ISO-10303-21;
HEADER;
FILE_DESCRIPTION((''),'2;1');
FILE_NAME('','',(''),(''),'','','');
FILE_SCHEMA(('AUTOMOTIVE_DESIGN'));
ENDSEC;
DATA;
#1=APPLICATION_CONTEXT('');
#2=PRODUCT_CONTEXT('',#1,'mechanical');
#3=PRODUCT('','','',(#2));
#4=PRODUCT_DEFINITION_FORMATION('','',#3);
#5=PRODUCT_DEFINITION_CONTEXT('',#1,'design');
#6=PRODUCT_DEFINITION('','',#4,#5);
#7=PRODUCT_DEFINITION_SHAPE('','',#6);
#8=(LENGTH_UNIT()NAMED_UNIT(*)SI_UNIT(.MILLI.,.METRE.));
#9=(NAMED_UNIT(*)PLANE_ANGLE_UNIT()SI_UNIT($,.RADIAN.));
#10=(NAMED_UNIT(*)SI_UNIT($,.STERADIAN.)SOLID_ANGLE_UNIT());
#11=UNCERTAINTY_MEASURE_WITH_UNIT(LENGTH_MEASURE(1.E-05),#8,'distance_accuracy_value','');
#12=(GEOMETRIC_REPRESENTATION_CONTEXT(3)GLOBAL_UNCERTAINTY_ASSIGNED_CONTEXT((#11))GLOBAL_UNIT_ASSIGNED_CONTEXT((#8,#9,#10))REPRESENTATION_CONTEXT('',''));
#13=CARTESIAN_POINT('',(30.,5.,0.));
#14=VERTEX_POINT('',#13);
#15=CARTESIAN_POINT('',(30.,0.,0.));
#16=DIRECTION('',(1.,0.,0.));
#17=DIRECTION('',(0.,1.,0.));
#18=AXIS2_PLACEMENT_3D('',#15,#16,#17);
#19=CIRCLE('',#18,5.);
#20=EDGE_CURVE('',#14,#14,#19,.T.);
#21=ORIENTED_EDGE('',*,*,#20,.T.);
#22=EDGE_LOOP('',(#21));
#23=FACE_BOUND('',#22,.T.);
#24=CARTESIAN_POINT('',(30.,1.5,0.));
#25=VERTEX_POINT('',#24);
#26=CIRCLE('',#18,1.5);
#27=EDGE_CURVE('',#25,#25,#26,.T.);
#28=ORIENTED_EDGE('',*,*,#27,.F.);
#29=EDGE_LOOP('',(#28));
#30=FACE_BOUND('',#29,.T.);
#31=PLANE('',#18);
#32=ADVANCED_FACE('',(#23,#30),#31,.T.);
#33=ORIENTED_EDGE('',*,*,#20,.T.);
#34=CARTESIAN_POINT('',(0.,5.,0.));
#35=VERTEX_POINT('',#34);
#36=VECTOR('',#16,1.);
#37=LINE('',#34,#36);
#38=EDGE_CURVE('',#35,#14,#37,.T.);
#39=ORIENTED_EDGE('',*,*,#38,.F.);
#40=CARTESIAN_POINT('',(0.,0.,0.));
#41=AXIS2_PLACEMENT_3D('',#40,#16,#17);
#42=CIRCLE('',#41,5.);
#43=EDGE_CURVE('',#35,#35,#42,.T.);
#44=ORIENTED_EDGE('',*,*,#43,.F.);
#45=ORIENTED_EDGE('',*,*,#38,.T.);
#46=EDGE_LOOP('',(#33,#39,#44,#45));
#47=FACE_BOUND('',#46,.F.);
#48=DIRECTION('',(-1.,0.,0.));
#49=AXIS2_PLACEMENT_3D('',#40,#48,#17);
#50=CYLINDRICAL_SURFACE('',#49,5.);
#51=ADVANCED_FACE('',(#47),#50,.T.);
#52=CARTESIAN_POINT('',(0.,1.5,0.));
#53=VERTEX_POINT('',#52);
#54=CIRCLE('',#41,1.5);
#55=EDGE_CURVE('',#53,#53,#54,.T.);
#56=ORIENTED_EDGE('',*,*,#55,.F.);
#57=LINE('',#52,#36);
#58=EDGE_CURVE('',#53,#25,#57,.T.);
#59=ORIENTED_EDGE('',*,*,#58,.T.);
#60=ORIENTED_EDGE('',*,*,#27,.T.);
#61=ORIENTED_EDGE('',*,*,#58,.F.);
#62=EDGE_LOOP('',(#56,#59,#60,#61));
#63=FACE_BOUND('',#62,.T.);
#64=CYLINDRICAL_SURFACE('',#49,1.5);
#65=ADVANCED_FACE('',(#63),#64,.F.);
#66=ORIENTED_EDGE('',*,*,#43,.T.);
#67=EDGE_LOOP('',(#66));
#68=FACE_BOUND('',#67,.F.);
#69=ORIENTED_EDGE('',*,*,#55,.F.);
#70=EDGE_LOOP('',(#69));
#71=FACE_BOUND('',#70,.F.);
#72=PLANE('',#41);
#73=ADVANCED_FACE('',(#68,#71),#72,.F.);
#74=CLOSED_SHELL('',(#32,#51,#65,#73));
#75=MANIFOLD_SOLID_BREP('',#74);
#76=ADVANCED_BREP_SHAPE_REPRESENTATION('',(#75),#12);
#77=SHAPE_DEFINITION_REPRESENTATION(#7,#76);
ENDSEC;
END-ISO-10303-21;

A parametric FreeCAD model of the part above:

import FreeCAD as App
import Part
import Sketcher
from FreeCAD import Vector

doc = App.newDocument("Part")
body = doc.addObject("PartDesign::Body", "Body")

# Sketch on YZ plane
sketch1 = body.newObject("Sketcher::SketchObject", "Sketch")
sketch1.AttachmentSupport = (doc.getObject("YZ_Plane"), [""])
sketch1.MapMode = "FlatFace"
sketch1.addGeometry(Part.Circle(Vector(0, 0, 0), Vector(0, 0, 1), 5), False)
sketch1.addGeometry(Part.Circle(Vector(0, 0, 0), Vector(0, 0, 1), 1.5), False)
sketch1.addConstraint(Sketcher.Constraint("Coincident", 0, 3, -1, 1))
sketch1.addConstraint(Sketcher.Constraint("Coincident", 1, 3, -1, 1))
sketch1.addConstraint(Sketcher.Constraint("Diameter", 0, 10.0))
sketch1.addConstraint(Sketcher.Constraint("Diameter", 1, 3.0))
pad1 = body.newObject("PartDesign::Pad", "Pad")
pad1.Profile = sketch1
pad1.Length = 30

doc.recompute()
